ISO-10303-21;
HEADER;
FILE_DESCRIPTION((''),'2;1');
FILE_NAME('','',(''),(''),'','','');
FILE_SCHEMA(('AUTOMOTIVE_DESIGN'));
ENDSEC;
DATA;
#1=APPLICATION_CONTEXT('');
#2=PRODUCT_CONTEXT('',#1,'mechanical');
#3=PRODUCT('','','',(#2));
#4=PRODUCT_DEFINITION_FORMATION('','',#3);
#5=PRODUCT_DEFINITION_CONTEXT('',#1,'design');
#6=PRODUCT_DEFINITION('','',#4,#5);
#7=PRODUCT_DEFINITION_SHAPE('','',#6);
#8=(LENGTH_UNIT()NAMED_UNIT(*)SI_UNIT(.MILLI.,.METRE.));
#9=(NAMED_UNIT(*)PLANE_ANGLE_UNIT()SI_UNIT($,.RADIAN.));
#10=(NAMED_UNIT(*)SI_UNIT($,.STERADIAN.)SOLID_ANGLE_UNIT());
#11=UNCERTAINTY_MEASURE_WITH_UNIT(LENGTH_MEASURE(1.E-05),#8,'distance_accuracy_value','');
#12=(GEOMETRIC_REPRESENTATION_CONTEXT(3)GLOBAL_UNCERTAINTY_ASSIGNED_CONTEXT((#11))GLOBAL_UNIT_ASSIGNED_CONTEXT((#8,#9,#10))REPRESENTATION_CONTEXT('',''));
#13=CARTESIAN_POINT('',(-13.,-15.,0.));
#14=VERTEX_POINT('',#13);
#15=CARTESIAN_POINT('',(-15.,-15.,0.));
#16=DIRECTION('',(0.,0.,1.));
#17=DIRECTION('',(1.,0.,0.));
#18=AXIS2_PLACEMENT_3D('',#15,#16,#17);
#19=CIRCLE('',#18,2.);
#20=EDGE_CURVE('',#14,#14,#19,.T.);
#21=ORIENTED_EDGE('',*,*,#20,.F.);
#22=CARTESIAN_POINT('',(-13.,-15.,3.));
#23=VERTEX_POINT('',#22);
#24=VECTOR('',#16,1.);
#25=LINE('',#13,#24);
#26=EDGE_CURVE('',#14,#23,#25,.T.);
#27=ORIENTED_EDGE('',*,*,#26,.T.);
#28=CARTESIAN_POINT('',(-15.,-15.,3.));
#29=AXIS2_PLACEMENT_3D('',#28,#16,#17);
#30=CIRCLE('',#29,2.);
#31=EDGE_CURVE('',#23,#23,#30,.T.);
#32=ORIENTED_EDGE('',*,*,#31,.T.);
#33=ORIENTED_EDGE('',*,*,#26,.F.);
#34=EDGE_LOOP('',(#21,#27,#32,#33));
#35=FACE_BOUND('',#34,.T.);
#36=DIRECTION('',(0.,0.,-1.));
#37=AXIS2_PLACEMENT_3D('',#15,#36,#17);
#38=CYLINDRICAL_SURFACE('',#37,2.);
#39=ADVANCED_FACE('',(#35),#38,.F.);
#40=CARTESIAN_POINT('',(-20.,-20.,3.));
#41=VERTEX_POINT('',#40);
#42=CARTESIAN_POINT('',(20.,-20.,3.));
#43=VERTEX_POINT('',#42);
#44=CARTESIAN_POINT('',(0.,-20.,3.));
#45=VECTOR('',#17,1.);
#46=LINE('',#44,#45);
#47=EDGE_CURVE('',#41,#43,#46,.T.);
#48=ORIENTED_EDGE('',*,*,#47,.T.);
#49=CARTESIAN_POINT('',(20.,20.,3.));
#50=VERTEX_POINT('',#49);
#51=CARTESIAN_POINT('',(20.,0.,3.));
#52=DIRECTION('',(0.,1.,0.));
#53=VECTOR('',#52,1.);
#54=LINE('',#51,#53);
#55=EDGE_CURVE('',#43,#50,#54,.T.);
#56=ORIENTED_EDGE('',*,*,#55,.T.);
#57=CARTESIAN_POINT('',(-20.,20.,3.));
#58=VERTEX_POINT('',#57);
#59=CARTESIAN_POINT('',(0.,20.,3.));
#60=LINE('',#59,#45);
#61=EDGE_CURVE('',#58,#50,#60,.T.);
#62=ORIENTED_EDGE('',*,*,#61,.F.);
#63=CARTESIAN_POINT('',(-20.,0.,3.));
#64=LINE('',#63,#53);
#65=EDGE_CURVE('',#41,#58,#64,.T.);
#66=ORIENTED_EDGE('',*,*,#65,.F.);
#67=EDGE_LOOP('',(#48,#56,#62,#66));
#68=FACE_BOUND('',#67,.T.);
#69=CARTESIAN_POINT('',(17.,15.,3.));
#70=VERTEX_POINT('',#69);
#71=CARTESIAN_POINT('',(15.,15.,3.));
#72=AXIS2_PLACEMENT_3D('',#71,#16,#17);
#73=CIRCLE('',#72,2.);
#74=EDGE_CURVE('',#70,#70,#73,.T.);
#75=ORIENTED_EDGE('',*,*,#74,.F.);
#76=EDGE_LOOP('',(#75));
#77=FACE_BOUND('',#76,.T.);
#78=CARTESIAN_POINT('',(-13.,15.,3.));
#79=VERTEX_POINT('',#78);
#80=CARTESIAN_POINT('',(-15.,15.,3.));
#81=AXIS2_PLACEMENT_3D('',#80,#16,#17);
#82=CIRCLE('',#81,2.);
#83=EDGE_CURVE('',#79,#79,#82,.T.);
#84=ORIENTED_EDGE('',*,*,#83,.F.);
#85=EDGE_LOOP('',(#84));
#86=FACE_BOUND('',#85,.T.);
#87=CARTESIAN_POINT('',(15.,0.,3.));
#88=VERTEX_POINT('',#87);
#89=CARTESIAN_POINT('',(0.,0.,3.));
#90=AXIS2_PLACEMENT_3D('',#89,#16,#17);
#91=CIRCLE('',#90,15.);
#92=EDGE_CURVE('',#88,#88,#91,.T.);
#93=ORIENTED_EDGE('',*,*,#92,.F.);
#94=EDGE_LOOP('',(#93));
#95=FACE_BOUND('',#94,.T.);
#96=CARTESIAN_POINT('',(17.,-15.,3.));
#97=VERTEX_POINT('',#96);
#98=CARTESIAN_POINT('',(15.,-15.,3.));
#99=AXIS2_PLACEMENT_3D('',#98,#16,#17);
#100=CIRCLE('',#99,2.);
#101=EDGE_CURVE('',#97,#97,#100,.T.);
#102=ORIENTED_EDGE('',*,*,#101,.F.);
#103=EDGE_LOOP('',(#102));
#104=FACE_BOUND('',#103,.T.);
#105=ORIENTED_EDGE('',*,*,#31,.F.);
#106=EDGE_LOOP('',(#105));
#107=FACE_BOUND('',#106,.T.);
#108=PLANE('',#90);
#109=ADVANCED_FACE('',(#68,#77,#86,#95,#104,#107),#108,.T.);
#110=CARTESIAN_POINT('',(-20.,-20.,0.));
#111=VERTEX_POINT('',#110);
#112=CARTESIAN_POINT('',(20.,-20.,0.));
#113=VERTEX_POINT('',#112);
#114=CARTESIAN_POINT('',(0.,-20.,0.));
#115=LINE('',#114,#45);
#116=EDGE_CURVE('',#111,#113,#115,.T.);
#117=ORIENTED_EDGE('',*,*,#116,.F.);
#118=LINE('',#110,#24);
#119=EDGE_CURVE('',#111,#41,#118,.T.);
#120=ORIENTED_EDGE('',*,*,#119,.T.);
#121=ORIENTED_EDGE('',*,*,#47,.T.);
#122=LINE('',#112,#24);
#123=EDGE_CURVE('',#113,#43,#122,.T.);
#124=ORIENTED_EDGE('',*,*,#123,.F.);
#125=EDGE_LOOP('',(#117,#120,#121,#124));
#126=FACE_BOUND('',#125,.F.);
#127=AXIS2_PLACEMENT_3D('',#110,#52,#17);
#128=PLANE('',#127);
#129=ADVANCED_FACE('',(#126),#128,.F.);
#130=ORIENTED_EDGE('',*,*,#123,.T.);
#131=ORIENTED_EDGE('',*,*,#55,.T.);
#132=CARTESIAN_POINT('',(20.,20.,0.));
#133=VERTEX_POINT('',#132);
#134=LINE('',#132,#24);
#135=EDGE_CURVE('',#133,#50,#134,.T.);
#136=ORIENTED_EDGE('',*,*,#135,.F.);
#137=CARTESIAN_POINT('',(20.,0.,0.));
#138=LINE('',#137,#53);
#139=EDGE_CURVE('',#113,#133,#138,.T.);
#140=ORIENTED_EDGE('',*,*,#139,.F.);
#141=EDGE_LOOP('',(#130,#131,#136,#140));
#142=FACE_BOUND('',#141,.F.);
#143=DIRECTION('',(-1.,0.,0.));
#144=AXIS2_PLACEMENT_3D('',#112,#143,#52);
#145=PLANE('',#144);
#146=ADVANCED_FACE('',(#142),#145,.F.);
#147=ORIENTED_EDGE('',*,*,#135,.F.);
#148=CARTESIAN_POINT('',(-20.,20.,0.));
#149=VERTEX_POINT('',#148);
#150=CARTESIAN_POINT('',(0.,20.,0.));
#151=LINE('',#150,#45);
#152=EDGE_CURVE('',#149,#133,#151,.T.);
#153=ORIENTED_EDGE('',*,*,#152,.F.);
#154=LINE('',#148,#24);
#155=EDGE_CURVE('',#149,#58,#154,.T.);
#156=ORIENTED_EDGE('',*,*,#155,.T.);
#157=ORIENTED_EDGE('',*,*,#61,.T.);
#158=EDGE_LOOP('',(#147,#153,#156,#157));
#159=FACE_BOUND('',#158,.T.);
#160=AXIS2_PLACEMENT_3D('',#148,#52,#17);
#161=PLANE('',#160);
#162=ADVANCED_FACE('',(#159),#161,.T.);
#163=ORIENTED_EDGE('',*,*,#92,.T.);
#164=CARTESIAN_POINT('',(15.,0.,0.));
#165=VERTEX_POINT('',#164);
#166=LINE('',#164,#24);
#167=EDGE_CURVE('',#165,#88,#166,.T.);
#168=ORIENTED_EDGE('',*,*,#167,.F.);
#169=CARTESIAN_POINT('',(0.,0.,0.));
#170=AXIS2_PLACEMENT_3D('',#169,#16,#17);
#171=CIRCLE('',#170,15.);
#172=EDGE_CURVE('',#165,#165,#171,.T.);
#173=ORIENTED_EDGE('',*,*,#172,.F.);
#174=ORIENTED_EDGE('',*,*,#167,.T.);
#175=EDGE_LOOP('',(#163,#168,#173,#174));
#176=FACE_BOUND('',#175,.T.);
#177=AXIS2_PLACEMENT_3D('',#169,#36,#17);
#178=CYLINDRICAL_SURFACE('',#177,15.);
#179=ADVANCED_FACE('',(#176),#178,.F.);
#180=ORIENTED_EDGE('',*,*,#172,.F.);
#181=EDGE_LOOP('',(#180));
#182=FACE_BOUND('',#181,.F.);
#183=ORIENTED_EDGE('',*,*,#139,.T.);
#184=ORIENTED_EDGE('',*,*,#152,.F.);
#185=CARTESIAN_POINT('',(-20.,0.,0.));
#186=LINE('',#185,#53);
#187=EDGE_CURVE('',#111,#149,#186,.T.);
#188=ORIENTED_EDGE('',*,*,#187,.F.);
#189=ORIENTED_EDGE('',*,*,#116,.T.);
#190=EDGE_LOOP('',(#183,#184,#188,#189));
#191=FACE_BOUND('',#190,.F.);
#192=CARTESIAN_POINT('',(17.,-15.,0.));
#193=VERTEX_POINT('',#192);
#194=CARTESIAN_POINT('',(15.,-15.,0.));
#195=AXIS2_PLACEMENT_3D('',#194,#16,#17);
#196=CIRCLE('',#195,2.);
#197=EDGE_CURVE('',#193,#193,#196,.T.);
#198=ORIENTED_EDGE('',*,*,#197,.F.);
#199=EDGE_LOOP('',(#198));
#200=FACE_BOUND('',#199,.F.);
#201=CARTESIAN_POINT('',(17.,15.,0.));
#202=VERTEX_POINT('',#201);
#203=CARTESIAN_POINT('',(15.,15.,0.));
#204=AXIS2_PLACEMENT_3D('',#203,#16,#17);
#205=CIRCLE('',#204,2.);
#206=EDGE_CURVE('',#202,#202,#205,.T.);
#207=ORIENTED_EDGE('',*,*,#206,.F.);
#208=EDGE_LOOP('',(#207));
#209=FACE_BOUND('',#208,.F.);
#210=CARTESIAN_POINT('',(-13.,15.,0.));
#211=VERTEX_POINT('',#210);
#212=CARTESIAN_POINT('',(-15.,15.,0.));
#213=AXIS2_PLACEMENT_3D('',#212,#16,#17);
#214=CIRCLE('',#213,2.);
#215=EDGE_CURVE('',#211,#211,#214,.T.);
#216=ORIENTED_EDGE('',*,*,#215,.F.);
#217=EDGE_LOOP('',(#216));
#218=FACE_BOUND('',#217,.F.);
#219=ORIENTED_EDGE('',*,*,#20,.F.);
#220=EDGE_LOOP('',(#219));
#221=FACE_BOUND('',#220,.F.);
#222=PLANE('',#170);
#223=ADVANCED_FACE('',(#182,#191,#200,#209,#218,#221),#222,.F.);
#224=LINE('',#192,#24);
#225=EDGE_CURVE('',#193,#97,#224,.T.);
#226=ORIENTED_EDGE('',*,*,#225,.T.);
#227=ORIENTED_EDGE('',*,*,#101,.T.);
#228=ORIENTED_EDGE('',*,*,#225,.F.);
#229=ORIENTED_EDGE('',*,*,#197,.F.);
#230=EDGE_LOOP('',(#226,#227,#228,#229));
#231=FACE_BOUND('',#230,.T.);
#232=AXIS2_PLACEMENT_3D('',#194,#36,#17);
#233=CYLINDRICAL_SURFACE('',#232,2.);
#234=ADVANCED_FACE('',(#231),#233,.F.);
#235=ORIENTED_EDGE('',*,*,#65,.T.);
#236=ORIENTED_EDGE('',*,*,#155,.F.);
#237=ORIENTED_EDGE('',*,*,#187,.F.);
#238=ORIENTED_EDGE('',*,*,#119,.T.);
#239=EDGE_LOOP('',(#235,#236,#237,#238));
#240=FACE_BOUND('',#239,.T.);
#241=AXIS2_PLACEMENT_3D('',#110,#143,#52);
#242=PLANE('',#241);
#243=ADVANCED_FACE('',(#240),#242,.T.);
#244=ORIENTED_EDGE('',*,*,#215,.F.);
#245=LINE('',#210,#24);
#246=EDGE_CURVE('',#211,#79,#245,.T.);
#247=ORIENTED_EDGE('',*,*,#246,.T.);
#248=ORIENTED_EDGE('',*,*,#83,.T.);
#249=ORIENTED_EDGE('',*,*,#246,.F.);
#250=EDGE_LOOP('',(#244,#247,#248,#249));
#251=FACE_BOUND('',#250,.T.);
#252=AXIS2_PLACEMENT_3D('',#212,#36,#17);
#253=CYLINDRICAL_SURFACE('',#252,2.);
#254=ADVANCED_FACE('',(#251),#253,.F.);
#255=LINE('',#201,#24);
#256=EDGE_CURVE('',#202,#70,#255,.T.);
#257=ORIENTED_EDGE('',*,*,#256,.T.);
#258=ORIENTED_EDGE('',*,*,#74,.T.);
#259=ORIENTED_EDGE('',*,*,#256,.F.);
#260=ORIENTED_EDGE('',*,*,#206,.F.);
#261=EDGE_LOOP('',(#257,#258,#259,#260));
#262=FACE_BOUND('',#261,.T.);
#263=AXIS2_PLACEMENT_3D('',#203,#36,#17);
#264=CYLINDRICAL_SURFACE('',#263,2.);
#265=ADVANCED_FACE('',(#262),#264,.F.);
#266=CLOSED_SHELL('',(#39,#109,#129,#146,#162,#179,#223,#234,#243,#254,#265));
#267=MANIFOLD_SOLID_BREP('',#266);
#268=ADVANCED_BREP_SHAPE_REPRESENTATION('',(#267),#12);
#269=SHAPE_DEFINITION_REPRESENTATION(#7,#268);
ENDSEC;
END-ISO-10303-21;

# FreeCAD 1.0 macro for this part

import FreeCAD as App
import Part
import Sketcher
Q = App.Units.Quantity


def add_polygon(sketch, points):
    """Adds a closed chain of lines whose ends are joined by coincident constraints."""
    first, n = sketch.GeometryCount, len(points)
    for a, b in zip(points, points[1:] + points[:1]):
        sketch.addGeometry(Part.LineSegment(App.Vector(*a, 0), App.Vector(*b, 0)), False)
    for i in range(n):
        sketch.addConstraint(Sketcher.Constraint("Coincident", first + i, 2, first + (i + 1) % n, 1))

doc = App.newDocument("Part")
params = doc.addObject("Spreadsheet::Sheet", "Params")
for row, (alias, value) in enumerate([
    ("sketch1_diameter", "4 mm"),
    ("sketch1_diameter2", "30 mm"),
    ("sketch1_width", "40 mm"),
    ("pad1_length", "3 mm"),
], start=1):
    params.set(f"A{row}", alias)
    params.set(f"B{row}", "=" + value)
    params.setAlias(f"B{row}", alias)

body = doc.addObject("PartDesign::Body", "Body")

# Sketch on XY plane
sketch1 = body.newObject("Sketcher::SketchObject", "Sketch")
sketch1.AttachmentSupport = (doc.getObject("XY_Plane"), [""])
sketch1.MapMode = "FlatFace"
add_polygon(sketch1, [(-20, 20), (-20, -20), (20, -20), (20, 20)])  # lines 0-3
sketch1.addGeometry(Part.Circle(App.Vector(-15, -15, 0), App.Vector(0, 0, 1), 2), False)  # 4
sketch1.addGeometry(Part.Circle(App.Vector(15, -15, 0), App.Vector(0, 0, 1), 2), False)  # 5
sketch1.addGeometry(Part.Circle(App.Vector(-15, 15, 0), App.Vector(0, 0, 1), 2), False)  # 6
sketch1.addGeometry(Part.Circle(App.Vector(0, 0, 0), App.Vector(0, 0, 1), 15), False)  # 7
sketch1.addGeometry(Part.Circle(App.Vector(15, 15, 0), App.Vector(0, 0, 1), 2), False)  # 8
sketch1.addConstraint(Sketcher.Constraint("Vertical", 0))
sketch1.addConstraint(Sketcher.Constraint("Horizontal", 1))
sketch1.addConstraint(Sketcher.Constraint("Vertical", 2))
sketch1.addConstraint(Sketcher.Constraint("Horizontal", 3))
sketch1.addConstraint(Sketcher.Constraint("Coincident", 7, 3, -1, 1))
sketch1.addConstraint(Sketcher.Constraint("Equal", 4, 5))
sketch1.addConstraint(Sketcher.Constraint("Equal", 5, 6))
sketch1.addConstraint(Sketcher.Constraint("Equal", 6, 8))
sketch1.addConstraint(Sketcher.Constraint("Symmetric", 5, 3, 6, 3, -1, 1))
sketch1.addConstraint(Sketcher.Constraint("Symmetric", 4, 3, 8, 3, -1, 1))
sketch1.addConstraint(Sketcher.Constraint("Symmetric", 0, 2, 2, 2, -1, 1))
sketch1.addConstraint(Sketcher.Constraint("Symmetric", 4, 3, 5, 3, -2))
sketch1.addConstraint(Sketcher.Constraint("Equal", 3, 0))
sketch1.addConstraint(Sketcher.Constraint("Diameter", 4, Q("4 mm")))
sketch1.addConstraint(Sketcher.Constraint("Diameter", 7, Q("30 mm")))
sketch1.addConstraint(Sketcher.Constraint("DistanceX", 1, 1, 1, 2, Q("40 mm")))
sketch1.addConstraint(Sketcher.Constraint("DistanceX", 4, 3, -1, 1, Q("15 mm")))
sketch1.addConstraint(Sketcher.Constraint("DistanceY", 4, 3, -1, 1, Q("15 mm")))
sketch1.setExpression("Constraints[17]", "Params.sketch1_diameter")
sketch1.setExpression("Constraints[18]", "Params.sketch1_diameter2")
sketch1.setExpression("Constraints[19]", "Params.sketch1_width")
pad1 = body.newObject("PartDesign::Pad", "Pad")
pad1.Profile = sketch1
pad1.setExpression("Length", "Params.pad1_length")

doc.recompute()
